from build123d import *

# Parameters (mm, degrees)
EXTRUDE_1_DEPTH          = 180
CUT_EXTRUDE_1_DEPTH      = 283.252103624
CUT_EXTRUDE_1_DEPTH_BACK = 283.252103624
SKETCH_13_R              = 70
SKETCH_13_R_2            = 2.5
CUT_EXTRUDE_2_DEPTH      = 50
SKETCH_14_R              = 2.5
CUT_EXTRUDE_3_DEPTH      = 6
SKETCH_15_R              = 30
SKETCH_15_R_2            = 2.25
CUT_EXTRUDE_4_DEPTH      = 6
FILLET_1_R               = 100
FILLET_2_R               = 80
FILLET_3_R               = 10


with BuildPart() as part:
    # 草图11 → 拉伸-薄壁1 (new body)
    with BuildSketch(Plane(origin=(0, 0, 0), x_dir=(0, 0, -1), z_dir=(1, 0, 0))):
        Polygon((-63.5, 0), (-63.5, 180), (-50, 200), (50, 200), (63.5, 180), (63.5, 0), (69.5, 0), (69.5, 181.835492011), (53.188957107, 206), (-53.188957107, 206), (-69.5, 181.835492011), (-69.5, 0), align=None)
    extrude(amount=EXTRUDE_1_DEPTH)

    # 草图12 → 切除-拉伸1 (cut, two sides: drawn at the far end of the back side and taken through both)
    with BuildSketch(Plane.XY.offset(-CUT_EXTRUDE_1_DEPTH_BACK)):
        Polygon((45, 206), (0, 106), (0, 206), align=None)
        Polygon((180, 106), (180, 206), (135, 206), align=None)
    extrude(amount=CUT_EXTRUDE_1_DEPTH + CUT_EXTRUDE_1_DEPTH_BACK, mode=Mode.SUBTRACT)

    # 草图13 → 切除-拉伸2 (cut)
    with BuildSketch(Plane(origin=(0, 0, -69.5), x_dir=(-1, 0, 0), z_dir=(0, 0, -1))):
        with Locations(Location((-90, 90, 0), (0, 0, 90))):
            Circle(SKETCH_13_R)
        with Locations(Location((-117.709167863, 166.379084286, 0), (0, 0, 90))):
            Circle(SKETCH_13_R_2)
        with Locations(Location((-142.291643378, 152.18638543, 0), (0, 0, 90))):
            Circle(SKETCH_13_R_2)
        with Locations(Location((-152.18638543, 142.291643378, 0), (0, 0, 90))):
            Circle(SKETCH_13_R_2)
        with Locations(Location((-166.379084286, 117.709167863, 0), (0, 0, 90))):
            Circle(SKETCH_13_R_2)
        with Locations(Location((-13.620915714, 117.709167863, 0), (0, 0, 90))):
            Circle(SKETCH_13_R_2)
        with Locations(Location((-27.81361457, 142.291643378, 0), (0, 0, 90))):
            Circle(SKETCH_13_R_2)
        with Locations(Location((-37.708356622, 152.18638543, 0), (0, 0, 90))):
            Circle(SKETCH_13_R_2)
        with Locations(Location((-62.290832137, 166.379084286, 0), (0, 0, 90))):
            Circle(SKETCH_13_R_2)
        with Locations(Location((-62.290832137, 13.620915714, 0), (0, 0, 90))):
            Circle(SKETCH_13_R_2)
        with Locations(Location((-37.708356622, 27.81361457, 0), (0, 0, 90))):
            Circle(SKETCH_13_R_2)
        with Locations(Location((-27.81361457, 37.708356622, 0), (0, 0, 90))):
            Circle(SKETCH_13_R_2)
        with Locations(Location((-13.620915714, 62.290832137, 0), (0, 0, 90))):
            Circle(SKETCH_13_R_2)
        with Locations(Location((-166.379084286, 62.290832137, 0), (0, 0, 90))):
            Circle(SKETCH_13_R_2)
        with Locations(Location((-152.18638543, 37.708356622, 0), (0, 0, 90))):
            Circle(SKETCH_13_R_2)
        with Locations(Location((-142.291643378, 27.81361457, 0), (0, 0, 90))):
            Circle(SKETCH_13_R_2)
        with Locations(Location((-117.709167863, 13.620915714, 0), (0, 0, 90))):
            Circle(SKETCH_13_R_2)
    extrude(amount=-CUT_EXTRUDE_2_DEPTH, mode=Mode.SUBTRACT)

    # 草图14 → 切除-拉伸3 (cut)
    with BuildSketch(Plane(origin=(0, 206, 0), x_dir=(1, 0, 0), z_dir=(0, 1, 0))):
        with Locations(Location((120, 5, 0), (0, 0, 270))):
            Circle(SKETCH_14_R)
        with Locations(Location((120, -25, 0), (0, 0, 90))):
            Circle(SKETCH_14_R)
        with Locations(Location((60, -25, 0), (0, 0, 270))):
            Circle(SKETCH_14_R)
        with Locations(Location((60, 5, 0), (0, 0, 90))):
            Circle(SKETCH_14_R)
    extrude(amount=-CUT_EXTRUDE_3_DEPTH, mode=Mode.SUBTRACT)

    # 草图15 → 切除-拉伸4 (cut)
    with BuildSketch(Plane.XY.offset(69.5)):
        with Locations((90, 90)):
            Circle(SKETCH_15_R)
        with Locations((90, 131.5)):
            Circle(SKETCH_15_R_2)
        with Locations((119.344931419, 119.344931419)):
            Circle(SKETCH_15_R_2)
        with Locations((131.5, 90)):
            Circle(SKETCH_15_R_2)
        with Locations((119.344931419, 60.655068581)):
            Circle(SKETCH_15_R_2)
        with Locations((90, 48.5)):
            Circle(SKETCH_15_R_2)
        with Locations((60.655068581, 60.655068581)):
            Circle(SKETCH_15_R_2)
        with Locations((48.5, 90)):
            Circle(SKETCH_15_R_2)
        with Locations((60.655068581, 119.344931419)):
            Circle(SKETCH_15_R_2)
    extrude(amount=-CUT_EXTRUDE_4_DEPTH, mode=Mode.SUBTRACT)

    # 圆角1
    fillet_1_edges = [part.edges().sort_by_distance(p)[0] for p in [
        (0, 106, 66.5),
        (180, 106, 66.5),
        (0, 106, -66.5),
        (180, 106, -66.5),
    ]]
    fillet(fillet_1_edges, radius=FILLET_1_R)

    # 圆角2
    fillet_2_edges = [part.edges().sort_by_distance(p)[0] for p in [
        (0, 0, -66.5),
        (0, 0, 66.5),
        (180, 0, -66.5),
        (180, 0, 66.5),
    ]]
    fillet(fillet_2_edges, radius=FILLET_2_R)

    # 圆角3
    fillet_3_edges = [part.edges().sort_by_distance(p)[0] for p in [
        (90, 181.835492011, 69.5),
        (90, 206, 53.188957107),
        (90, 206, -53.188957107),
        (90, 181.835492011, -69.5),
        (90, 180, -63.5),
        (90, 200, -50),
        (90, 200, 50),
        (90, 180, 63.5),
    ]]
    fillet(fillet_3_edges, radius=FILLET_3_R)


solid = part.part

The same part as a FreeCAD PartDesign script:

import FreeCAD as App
import Part
import Sketcher
Q = App.Units.Quantity


def edges_at(feature, points):
    """Names of the edges that pass closest to the given points."""
    edges = feature.Shape.Edges
    near = lambda p: min(range(len(edges)), key=lambda i: edges[i].distToShape(Part.Vertex(*p))[0])
    return sorted({f"Edge{near(p) + 1}" for p in points})


def add_polygon(sketch, points):
    """Adds a closed chain of lines whose ends are joined by coincident constraints."""
    first, n = sketch.GeometryCount, len(points)
    for a, b in zip(points, points[1:] + points[:1]):
        sketch.addGeometry(Part.LineSegment(App.Vector(*a, 0), App.Vector(*b, 0)), False)
    for i in range(n):
        sketch.addConstraint(Sketcher.Constraint("Coincident", first + i, 2, first + (i + 1) % n, 1))

doc = App.newDocument("Part")
body = doc.addObject("PartDesign::Body", "Body")

sketch1 = doc.addObject("Sketcher::SketchObject", "Sketch")
body.addObject(sketch1)
sketch1.AttachmentSupport = (doc.YZ_Plane, [""])
sketch1.MapMode = "FlatFace"
add_polygon(sketch1, [(0, 64), (180, 64), (200, 50), (200, -50), (180, -64), (0, -64), (0, -70), (182, -70), (206, -53), (206, 53), (182, 70), (0, 70)])
sketch1.addConstraint([
    Sketcher.Constraint("Horizontal", 0),
    Sketcher.Constraint("Vertical", 2),
    Sketcher.Constraint("Horizontal", 4),
    Sketcher.Constraint("Vertical", 5),
    Sketcher.Constraint("Horizontal", 6),
    Sketcher.Constraint("Vertical", 8),
    Sketcher.Constraint("Horizontal", 10),
    Sketcher.Constraint("Vertical", 11),
    Sketcher.Constraint("Symmetric", 5, 2, 10, 2, -1, 1),
    Sketcher.Constraint("Symmetric", 0, 2, 3, 2, -1),
    Sketcher.Constraint("PointOnObject", 4, 2, -2),
    Sketcher.Constraint("Parallel", 3, 7),
    Sketcher.Constraint("Parallel", 1, 9),
    Sketcher.Constraint("Vertical", 6, 2, 9, 2),
    Sketcher.Constraint("Equal", 1, 3),
    Sketcher.Constraint("DistanceX", 0, 1, 0, 2, Q("180 mm")),
    Sketcher.Constraint("DistanceY", 2, 2, 2, 1, Q("100 mm")),
    Sketcher.Constraint("DistanceY", 5, 2, 5, 1, Q("6 mm")),
    Sketcher.Constraint("DistanceX", -1, 1, 1, 2, Q("200 mm")),
    Sketcher.Constraint("DistanceX", -1, 1, 7, 2, Q("206 mm")),
    Sketcher.Constraint("DistanceY", 3, 2, 0, 2, Q("127 mm")),
    Sketcher.Constraint("DistanceX", 6, 1, 6, 2, Q("181.835492 mm")),
])
pad1 = doc.addObject("PartDesign::Pad", "Pad")
body.addObject(pad1)
pad1.Profile = sketch1
pad1.Length = 180

sketch2 = doc.addObject("Sketcher::SketchObject", "Sketch001")
body.addObject(sketch2)
sketch2.AttachmentSupport = (doc.XY_Plane, [""])
sketch2.MapMode = "FlatFace"
add_polygon(sketch2, [(0, 106), (45, 206), (0, 206)])
add_polygon(sketch2, [(180, 106), (180, 206), (135, 206)])
sketch2.addConstraint([
    Sketcher.Constraint("Horizontal", 1),
    Sketcher.Constraint("Vertical", 2),
    Sketcher.Constraint("Vertical", 3),
    Sketcher.Constraint("Horizontal", 4),
    Sketcher.Constraint("PointOnObject", 1, 2, -2),
    Sketcher.Constraint("Horizontal", 1, 2, 3, 2),
    Sketcher.Constraint("Horizontal", 2, 2, 5, 2),
    Sketcher.Constraint("Equal", 1, 4),
    Sketcher.Constraint("DistanceX", 1, 2, 1, 1, Q("45 mm")),
    Sketcher.Constraint("DistanceY", 2, 2, 2, 1, Q("100 mm")),
    Sketcher.Constraint("DistanceY", -1, 1, 0, 2, Q("206 mm")),
    Sketcher.Constraint("DistanceX", -1, 1, 3, 2, Q("180 mm")),
])
pocket1 = doc.addObject("PartDesign::Pocket", "Pocket")
body.addObject(pocket1)
pocket1.Profile = sketch2
pocket1.Type = "ThroughAll"
pocket1.Midplane = True

sketch3 = doc.addObject("Sketcher::SketchObject", "Sketch002")
body.addObject(sketch3)
sketch3.AttachmentSupport = (doc.XY_Plane, [""])
sketch3.MapMode = "FlatFace"
sketch3.AttachmentOffset = App.Placement(App.Vector(0, 0, -69.5), App.Rotation())
sketch3.addGeometry([
    Part.Circle(App.Vector(90, 90, 0), App.Vector(0, 0, 1), 70),
    Part.Circle(App.Vector(117.7, 166.4, 0), App.Vector(0, 0, 1), 2.5),
    Part.Circle(App.Vector(142.3, 152.2, 0), App.Vector(0, 0, 1), 2.5),
    Part.Circle(App.Vector(152.2, 142.3, 0), App.Vector(0, 0, 1), 2.5),
    Part.Circle(App.Vector(166.4, 117.7, 0), App.Vector(0, 0, 1), 2.5),
    Part.Circle(App.Vector(13.6, 117.7, 0), App.Vector(0, 0, 1), 2.5),
    Part.Circle(App.Vector(27.8, 142.3, 0), App.Vector(0, 0, 1), 2.5),
    Part.Circle(App.Vector(37.7, 152.2, 0), App.Vector(0, 0, 1), 2.5),
    Part.Circle(App.Vector(62.3, 166.4, 0), App.Vector(0, 0, 1), 2.5),
    Part.Circle(App.Vector(62.3, 13.6, 0), App.Vector(0, 0, 1), 2.5),
    Part.Circle(App.Vector(37.7, 27.8, 0), App.Vector(0, 0, 1), 2.5),
    Part.Circle(App.Vector(27.8, 37.7, 0), App.Vector(0, 0, 1), 2.5),
    Part.Circle(App.Vector(13.6, 62.3, 0), App.Vector(0, 0, 1), 2.5),
    Part.Circle(App.Vector(166.4, 62.3, 0), App.Vector(0, 0, 1), 2.5),
    Part.Circle(App.Vector(152.2, 37.7, 0), App.Vector(0, 0, 1), 2.5),
    Part.Circle(App.Vector(142.3, 27.8, 0), App.Vector(0, 0, 1), 2.5),
    Part.Circle(App.Vector(117.7, 13.6, 0), App.Vector(0, 0, 1), 2.5),
], False)
sketch3.addConstraint([
    Sketcher.Constraint("Equal", 1, 2),
    Sketcher.Constraint("Equal", 2, 3),
    Sketcher.Constraint("Equal", 3, 4),
    Sketcher.Constraint("Equal", 4, 5),
    Sketcher.Constraint("Equal", 5, 6),
    Sketcher.Constraint("Equal", 6, 7),
    Sketcher.Constraint("Equal", 7, 8),
    Sketcher.Constraint("Equal", 8, 9),
    Sketcher.Constraint("Equal", 9, 10),
    Sketcher.Constraint("Equal", 10, 11),
    Sketcher.Constraint("Equal", 11, 12),
    Sketcher.Constraint("Equal", 12, 13),
    Sketcher.Constraint("Equal", 13, 14),
    Sketcher.Constraint("Equal", 14, 15),
    Sketcher.Constraint("Equal", 15, 16),
    Sketcher.Constraint("Horizontal", 4, 3, 5, 3),
    Sketcher.Constraint("Horizontal", 3, 3, 6, 3),
    Sketcher.Constraint("Horizontal", 2, 3, 7, 3),
    Sketcher.Constraint("Horizontal", 1, 3, 8, 3),
    Sketcher.Constraint("Horizontal", 12, 3, 13, 3),
    Sketcher.Constraint("Horizontal", 11, 3, 14, 3),
    Sketcher.Constraint("Horizontal", 10, 3, 15, 3),
    Sketcher.Constraint("Horizontal", 9, 3, 16, 3),
    Sketcher.Constraint("Vertical", 8, 3, 9, 3),
    Sketcher.Constraint("Vertical", 7, 3, 10, 3),
    Sketcher.Constraint("Vertical", 6, 3, 11, 3),
    Sketcher.Constraint("Vertical", 5, 3, 12, 3),
    Sketcher.Constraint("Vertical", 4, 3, 13, 3),
    Sketcher.Constraint("Vertical", 3, 3, 14, 3),
    Sketcher.Constraint("Vertical", 2, 3, 15, 3),
    Sketcher.Constraint("Vertical", 1, 3, 16, 3),
    Sketcher.Constraint("Diameter", 0, Q("140 mm")),
    Sketcher.Constraint("Diameter", 1, Q("5 mm")),
    Sketcher.Constraint("DistanceX", -1, 1, 0, 3, Q("90 mm")),
    Sketcher.Constraint("DistanceY", -1, 1, 0, 3, Q("90 mm")),
    Sketcher.Constraint("DistanceY", 2, 3, 1, 3, Q("14.192699 mm")),
    Sketcher.Constraint("DistanceX", 3, 3, 4, 3, Q("14.192699 mm")),
    Sketcher.Constraint("DistanceX", 5, 3, 6, 3, Q("14.192699 mm")),
    Sketcher.Constraint("DistanceY", 9, 3, 10, 3, Q("14.192699 mm")),
    Sketcher.Constraint("DistanceY", 3, 3, 1, 3, Q("24.087441 mm")),
    Sketcher.Constraint("DistanceX", 2, 3, 4, 3, Q("24.087441 mm")),
    Sketcher.Constraint("DistanceX", 5, 3, 3, 3, Q("138.56547 mm")),
    Sketcher.Constraint("DistanceX", 5, 3, 7, 3, Q("24.087441 mm")),
    Sketcher.Constraint("DistanceX", 7, 3, 1, 3, Q("80.000811 mm")),
    Sketcher.Constraint("DistanceY", 9, 3, 7, 3, Q("138.56547 mm")),
    Sketcher.Constraint("DistanceY", 9, 3, 11, 3, Q("24.087441 mm")),
    Sketcher.Constraint("DistanceY", 11, 3, 5, 3, Q("80.000811 mm")),
    Sketcher.Constraint("DistanceY", 13, 3, 3, 3, Q("80.000811 mm")),
    Sketcher.Constraint("DistanceX", 9, 3, 15, 3, Q("80.000811 mm")),
    Sketcher.Constraint("DistanceX", -1, 1, 1, 3, Q("117.709168 mm")),
    Sketcher.Constraint("DistanceY", -1, 1, 1, 3, Q("166.379084 mm")),
])
pocket2 = doc.addObject("PartDesign::Pocket", "Pocket001")
body.addObject(pocket2)
pocket2.Profile = sketch3
pocket2.Length = 50
pocket2.Reversed = True

sketch4 = doc.addObject("Sketcher::SketchObject", "Sketch003")
body.addObject(sketch4)
sketch4.AttachmentSupport = (doc.XZ_Plane, [""])
sketch4.MapMode = "FlatFace"
sketch4.AttachmentOffset = App.Placement(App.Vector(0, 0, -206), App.Rotation())
sketch4.addGeometry([
    Part.Circle(App.Vector(120, -5, 0), App.Vector(0, 0, 1), 2.5),
    Part.Circle(App.Vector(120, 25, 0), App.Vector(0, 0, 1), 2.5),
    Part.Circle(App.Vector(60, 25, 0), App.Vector(0, 0, 1), 2.5),
    Part.Circle(App.Vector(60, -5, 0), App.Vector(0, 0, 1), 2.5),
], False)
sketch4.addConstraint([
    Sketcher.Constraint("Equal", 0, 1),
    Sketcher.Constraint("Equal", 1, 2),
    Sketcher.Constraint("Equal", 2, 3),
    Sketcher.Constraint("Horizontal", 1, 3, 2, 3),
    Sketcher.Constraint("Horizontal", 0, 3, 3, 3),
    Sketcher.Constraint("Vertical", 0, 3, 1, 3),
    Sketcher.Constraint("Vertical", 2, 3, 3, 3),
    Sketcher.Constraint("Diameter", 0, Q("5 mm")),
    Sketcher.Constraint("DistanceX", -1, 1, 0, 3, Q("120 mm")),
    Sketcher.Constraint("DistanceY", 0, 3, -1, 1, Q("5 mm")),
    Sketcher.Constraint("DistanceY", -1, 1, 1, 3, Q("25 mm")),
    Sketcher.Constraint("DistanceX", -1, 1, 2, 3, Q("60 mm")),
])
pocket3 = doc.addObject("PartDesign::Pocket", "Pocket002")
body.addObject(pocket3)
pocket3.Profile = sketch4
pocket3.Length = 6
pocket3.Reversed = True

sketch5 = doc.addObject("Sketcher::SketchObject", "Sketch004")
body.addObject(sketch5)
sketch5.AttachmentSupport = (doc.XY_Plane, [""])
sketch5.MapMode = "FlatFace"
sketch5.AttachmentOffset = App.Placement(App.Vector(0, 0, 69.5), App.Rotation())
sketch5.addGeometry([
    Part.Circle(App.Vector(90, 90, 0), App.Vector(0, 0, 1), 30),
    Part.Circle(App.Vector(90, 131.5, 0), App.Vector(0, 0, 1), 2.2),
    Part.Circle(App.Vector(119.3, 119.3, 0), App.Vector(0, 0, 1), 2.2),
    Part.Circle(App.Vector(131.5, 90, 0), App.Vector(0, 0, 1), 2.2),
    Part.Circle(App.Vector(119.3, 60.7, 0), App.Vector(0, 0, 1), 2.2),
    Part.Circle(App.Vector(90, 48.5, 0), App.Vector(0, 0, 1), 2.2),
    Part.Circle(App.Vector(60.7, 60.7, 0), App.Vector(0, 0, 1), 2.2),
    Part.Circle(App.Vector(48.5, 90, 0), App.Vector(0, 0, 1), 2.2),
    Part.Circle(App.Vector(60.7, 119.3, 0), App.Vector(0, 0, 1), 2.2),
], False)
sketch5.addConstraint([
    Sketcher.Constraint("Equal", 1, 2),
    Sketcher.Constraint("Equal", 2, 3),
    Sketcher.Constraint("Equal", 3, 4),
    Sketcher.Constraint("Equal", 4, 5),
    Sketcher.Constraint("Equal", 5, 6),
    Sketcher.Constraint("Equal", 6, 7),
    Sketcher.Constraint("Equal", 7, 8),
    Sketcher.Constraint("Horizontal", 0, 3, 3, 3),
    Sketcher.Constraint("Horizontal", 4, 3, 6, 3),
    Sketcher.Constraint("Horizontal", 3, 3, 7, 3),
    Sketcher.Constraint("Horizontal", 2, 3, 8, 3),
    Sketcher.Constraint("Vertical", 0, 3, 1, 3),
    Sketcher.Constraint("Vertical", 2, 3, 4, 3),
    Sketcher.Constraint("Vertical", 1, 3, 5, 3),
    Sketcher.Constraint("Vertical", 6, 3, 8, 3),
    Sketcher.Constraint("Diameter", 0, Q("60 mm")),
    Sketcher.Constraint("Diameter", 1, Q("4.5 mm")),
    Sketcher.Constraint("DistanceX", -1, 1, 0, 3, Q("90 mm")),
    Sketcher.Constraint("DistanceY", -1, 1, 0, 3, Q("90 mm")),
    Sketcher.Constraint("DistanceY", 5, 3, 1, 3, Q("83 mm")),
    Sketcher.Constraint("DistanceY", -1, 1, 1, 3, Q("131.5 mm")),
    Sketcher.Constraint("DistanceX", -1, 1, 3, 3, Q("131.5 mm")),
    Sketcher.Constraint("DistanceX", -1, 1, 7, 3, Q("48.5 mm")),
    Sketcher.Constraint("DistanceX", -1, 1, 2, 3, Q("119.344931 mm")),
    Sketcher.Constraint("DistanceY", -1, 1, 2, 3, Q("119.344931 mm")),
    Sketcher.Constraint("DistanceY", -1, 1, 4, 3, Q("60.655069 mm")),
    Sketcher.Constraint("DistanceX", -1, 1, 6, 3, Q("60.655069 mm")),
])
pocket4 = doc.addObject("PartDesign::Pocket", "Pocket003")
body.addObject(pocket4)
pocket4.Profile = sketch5
pocket4.Length = 6
doc.recompute()

fillet = doc.addObject("PartDesign::Fillet", "Fillet")
body.addObject(fillet)
fillet.Base = (pocket4, edges_at(pocket4, [
    (0, 106, 66.5),
    (180, 106, 66.5),
    (0, 106, -66.5),
    (180, 106, -66.5),
]))
fillet.Radius = 100
doc.recompute()

fillet2 = doc.addObject("PartDesign::Fillet", "Fillet001")
body.addObject(fillet2)
fillet2.Base = (fillet, edges_at(fillet, [
    (0, 0, -66.5),
    (0, 0, 66.5),
    (180, 0, -66.5),
    (180, 0, 66.5),
]))
fillet2.Radius = 80
doc.recompute()

fillet3 = doc.addObject("PartDesign::Fillet", "Fillet002")
body.addObject(fillet3)
fillet3.Base = (fillet2, edges_at(fillet2, [
    (90, 181.835, 69.5),
    (90, 206, 53.189),
    (90, 206, -53.189),
    (90, 181.835, -69.5),
    (90, 180, -63.5),
    (90, 200, -50),
    (90, 200, 50),
    (90, 180, 63.5),
]))
fillet3.Radius = 10

doc.recompute()
